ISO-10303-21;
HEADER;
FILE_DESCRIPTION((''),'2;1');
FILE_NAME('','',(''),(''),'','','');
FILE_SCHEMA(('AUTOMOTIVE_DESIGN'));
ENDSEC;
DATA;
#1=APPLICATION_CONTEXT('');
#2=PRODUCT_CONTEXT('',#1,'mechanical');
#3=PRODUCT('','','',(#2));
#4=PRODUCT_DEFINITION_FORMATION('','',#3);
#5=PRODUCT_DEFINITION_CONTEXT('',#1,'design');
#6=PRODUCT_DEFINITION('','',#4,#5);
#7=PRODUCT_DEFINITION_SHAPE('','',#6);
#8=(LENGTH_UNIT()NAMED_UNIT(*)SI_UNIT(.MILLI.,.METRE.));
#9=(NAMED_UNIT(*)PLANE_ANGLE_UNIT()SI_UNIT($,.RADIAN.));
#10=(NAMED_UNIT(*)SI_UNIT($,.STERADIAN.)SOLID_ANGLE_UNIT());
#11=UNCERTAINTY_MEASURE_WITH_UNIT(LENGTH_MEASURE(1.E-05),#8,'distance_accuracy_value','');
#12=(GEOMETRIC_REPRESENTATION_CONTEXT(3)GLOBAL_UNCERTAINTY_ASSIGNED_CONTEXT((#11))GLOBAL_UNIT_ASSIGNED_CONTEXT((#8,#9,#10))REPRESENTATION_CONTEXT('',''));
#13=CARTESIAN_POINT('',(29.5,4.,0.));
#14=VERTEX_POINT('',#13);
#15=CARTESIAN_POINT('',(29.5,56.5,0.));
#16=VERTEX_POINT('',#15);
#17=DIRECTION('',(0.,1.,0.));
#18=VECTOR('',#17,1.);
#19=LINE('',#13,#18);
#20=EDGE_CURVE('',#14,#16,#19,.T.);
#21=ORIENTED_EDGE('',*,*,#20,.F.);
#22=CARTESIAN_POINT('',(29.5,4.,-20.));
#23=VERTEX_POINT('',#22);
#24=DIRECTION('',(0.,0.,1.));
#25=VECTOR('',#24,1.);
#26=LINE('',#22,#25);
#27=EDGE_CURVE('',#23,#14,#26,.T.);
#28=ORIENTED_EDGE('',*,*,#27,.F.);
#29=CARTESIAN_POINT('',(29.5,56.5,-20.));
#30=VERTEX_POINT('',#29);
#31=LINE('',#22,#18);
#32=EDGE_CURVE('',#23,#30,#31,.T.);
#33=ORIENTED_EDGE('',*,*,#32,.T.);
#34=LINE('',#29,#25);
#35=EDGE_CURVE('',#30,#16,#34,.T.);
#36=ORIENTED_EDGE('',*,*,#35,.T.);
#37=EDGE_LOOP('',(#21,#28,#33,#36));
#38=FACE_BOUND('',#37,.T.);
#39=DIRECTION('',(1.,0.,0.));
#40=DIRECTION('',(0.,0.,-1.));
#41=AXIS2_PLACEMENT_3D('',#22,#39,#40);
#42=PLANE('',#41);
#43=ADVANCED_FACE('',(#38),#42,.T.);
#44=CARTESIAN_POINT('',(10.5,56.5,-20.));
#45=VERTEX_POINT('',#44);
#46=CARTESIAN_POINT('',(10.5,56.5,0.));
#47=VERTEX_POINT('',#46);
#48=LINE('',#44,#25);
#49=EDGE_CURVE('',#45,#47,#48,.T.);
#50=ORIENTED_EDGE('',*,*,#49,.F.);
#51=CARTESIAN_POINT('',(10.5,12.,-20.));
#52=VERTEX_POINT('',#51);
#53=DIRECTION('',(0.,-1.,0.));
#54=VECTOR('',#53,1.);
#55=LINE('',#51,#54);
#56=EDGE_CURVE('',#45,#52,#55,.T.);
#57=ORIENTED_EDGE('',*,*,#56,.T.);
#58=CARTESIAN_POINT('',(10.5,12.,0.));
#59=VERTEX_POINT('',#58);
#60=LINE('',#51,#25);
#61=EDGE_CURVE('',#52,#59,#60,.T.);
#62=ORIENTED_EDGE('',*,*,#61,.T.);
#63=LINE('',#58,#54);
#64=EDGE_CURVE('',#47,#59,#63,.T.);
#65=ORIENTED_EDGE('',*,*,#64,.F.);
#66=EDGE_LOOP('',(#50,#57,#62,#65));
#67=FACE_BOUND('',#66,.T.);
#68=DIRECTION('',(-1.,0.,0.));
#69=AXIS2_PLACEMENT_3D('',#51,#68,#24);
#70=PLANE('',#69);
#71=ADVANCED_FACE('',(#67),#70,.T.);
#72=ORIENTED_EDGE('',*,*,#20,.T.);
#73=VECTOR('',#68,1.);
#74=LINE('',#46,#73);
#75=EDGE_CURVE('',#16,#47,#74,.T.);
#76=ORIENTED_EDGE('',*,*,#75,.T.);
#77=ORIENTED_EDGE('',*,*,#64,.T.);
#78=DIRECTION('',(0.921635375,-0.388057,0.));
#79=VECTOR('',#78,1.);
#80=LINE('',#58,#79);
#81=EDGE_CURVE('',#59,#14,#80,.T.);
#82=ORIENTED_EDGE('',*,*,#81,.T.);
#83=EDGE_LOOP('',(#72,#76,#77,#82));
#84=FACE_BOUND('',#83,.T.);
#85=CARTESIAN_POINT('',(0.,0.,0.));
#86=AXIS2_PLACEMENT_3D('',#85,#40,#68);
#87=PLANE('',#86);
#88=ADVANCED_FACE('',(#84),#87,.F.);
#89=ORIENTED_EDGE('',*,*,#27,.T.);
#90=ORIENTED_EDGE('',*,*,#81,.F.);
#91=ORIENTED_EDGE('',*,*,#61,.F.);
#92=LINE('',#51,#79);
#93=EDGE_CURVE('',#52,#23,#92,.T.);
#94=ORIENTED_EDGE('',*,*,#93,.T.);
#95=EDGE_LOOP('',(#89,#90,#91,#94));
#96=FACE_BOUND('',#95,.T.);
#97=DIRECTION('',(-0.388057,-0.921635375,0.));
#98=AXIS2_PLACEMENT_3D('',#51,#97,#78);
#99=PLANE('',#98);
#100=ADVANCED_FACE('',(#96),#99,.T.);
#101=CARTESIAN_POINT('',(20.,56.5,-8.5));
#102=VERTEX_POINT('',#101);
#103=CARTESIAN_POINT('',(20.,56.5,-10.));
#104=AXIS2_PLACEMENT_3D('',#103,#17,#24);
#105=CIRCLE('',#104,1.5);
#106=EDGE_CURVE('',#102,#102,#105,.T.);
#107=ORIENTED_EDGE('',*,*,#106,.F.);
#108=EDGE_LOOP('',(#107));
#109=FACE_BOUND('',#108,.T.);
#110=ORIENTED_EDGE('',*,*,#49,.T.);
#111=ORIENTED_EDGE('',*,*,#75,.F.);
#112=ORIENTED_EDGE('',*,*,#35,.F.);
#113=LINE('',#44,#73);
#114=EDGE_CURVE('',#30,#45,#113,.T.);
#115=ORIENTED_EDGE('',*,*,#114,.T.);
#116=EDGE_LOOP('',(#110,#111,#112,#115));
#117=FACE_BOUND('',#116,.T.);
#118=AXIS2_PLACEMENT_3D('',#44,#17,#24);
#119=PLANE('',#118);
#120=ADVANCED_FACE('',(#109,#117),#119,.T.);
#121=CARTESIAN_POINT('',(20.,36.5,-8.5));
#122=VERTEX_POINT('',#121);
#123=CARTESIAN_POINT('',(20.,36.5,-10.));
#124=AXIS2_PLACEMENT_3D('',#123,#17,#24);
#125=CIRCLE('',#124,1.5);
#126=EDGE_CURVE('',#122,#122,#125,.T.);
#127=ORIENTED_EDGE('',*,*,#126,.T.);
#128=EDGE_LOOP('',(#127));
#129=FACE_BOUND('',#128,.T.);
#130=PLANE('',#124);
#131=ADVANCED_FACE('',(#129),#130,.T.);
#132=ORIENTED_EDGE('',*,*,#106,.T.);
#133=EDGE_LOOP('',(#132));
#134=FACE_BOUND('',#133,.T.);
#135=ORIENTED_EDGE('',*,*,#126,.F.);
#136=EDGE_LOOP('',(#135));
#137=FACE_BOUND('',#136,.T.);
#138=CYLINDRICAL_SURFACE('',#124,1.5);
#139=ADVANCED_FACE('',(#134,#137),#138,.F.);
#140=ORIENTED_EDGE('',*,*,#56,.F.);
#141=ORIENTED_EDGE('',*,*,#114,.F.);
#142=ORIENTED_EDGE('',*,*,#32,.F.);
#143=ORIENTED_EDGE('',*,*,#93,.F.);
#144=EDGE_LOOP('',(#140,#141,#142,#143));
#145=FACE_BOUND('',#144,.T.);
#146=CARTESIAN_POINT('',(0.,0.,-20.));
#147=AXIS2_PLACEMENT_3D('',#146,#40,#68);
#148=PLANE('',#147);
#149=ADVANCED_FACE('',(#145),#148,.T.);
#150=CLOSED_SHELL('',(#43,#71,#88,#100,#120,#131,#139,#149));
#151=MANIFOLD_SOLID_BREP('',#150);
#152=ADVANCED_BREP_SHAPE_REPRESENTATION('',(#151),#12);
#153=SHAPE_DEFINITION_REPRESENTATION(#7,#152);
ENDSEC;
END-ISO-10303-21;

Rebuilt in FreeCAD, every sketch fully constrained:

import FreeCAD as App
import Part
import Sketcher

doc = App.newDocument("Part")
body = doc.addObject("PartDesign::Body", "Body")

sketch1 = doc.addObject("Sketcher::SketchObject", "Sketch")
body.addObject(sketch1)
sketch1.AttachmentSupport = (doc.XY_Plane, [""])
sketch1.MapMode = "FlatFace"
sketch1.addGeometry([
    Part.LineSegment(App.Vector(10, 12, 0), App.Vector(30, 4, 0)),
    Part.LineSegment(App.Vector(30, 4, 0), App.Vector(30, 56, 0)),
    Part.LineSegment(App.Vector(30, 56, 0), App.Vector(10, 56, 0)),
    Part.LineSegment(App.Vector(10, 56, 0), App.Vector(10, 12, 0)),
], False)
sketch1.addConstraint([
    Sketcher.Constraint("Coincident", 0, 2, 1, 1),
    Sketcher.Constraint("Coincident", 1, 2, 2, 1),
    Sketcher.Constraint("Coincident", 2, 2, 3, 1),
    Sketcher.Constraint("Coincident", 3, 2, 0, 1),
    Sketcher.Constraint("Vertical", 1),
    Sketcher.Constraint("Horizontal", 2),
    Sketcher.Constraint("Vertical", 3),
    Sketcher.Constraint("DistanceX", 2, 2, 2, 1, 19.0),
    Sketcher.Constraint("DistanceY", 1, 1, 1, 2, 52.5),
    Sketcher.Constraint("DistanceY", 3, 2, 3, 1, 44.5),
    Sketcher.Constraint("DistanceY", -1, 1, 0, 2, 4.0),
    Sketcher.Constraint("DistanceX", -1, 1, 0, 2, 29.5),
])
pad1 = doc.addObject("PartDesign::Pad", "Pad")
body.addObject(pad1)
pad1.Profile = sketch1
pad1.Length = 20
pad1.Reversed = True

sketch2 = doc.addObject("Sketcher::SketchObject", "Sketch001")
body.addObject(sketch2)
sketch2.AttachmentSupport = (doc.XZ_Plane, [""])
sketch2.MapMode = "FlatFace"
sketch2.AttachmentOffset = App.Placement(App.Vector(0, 0, -56.5), App.Rotation())
sketch2.addGeometry(Part.Circle(App.Vector(20, -10, 0), App.Vector(0, 0, 1), 1.5), False)
sketch2.addConstraint([
    Sketcher.Constraint("Diameter", 0, 3.0),
    Sketcher.Constraint("DistanceX", -1, 1, 0, 3, 20.0),
    Sketcher.Constraint("DistanceY", 0, 3, -1, 1, 10.0),
])
pocket1 = doc.addObject("PartDesign::Pocket", "Pocket")
body.addObject(pocket1)
pocket1.Profile = sketch2
pocket1.Length = 20
pocket1.Reversed = True

doc.recompute()
